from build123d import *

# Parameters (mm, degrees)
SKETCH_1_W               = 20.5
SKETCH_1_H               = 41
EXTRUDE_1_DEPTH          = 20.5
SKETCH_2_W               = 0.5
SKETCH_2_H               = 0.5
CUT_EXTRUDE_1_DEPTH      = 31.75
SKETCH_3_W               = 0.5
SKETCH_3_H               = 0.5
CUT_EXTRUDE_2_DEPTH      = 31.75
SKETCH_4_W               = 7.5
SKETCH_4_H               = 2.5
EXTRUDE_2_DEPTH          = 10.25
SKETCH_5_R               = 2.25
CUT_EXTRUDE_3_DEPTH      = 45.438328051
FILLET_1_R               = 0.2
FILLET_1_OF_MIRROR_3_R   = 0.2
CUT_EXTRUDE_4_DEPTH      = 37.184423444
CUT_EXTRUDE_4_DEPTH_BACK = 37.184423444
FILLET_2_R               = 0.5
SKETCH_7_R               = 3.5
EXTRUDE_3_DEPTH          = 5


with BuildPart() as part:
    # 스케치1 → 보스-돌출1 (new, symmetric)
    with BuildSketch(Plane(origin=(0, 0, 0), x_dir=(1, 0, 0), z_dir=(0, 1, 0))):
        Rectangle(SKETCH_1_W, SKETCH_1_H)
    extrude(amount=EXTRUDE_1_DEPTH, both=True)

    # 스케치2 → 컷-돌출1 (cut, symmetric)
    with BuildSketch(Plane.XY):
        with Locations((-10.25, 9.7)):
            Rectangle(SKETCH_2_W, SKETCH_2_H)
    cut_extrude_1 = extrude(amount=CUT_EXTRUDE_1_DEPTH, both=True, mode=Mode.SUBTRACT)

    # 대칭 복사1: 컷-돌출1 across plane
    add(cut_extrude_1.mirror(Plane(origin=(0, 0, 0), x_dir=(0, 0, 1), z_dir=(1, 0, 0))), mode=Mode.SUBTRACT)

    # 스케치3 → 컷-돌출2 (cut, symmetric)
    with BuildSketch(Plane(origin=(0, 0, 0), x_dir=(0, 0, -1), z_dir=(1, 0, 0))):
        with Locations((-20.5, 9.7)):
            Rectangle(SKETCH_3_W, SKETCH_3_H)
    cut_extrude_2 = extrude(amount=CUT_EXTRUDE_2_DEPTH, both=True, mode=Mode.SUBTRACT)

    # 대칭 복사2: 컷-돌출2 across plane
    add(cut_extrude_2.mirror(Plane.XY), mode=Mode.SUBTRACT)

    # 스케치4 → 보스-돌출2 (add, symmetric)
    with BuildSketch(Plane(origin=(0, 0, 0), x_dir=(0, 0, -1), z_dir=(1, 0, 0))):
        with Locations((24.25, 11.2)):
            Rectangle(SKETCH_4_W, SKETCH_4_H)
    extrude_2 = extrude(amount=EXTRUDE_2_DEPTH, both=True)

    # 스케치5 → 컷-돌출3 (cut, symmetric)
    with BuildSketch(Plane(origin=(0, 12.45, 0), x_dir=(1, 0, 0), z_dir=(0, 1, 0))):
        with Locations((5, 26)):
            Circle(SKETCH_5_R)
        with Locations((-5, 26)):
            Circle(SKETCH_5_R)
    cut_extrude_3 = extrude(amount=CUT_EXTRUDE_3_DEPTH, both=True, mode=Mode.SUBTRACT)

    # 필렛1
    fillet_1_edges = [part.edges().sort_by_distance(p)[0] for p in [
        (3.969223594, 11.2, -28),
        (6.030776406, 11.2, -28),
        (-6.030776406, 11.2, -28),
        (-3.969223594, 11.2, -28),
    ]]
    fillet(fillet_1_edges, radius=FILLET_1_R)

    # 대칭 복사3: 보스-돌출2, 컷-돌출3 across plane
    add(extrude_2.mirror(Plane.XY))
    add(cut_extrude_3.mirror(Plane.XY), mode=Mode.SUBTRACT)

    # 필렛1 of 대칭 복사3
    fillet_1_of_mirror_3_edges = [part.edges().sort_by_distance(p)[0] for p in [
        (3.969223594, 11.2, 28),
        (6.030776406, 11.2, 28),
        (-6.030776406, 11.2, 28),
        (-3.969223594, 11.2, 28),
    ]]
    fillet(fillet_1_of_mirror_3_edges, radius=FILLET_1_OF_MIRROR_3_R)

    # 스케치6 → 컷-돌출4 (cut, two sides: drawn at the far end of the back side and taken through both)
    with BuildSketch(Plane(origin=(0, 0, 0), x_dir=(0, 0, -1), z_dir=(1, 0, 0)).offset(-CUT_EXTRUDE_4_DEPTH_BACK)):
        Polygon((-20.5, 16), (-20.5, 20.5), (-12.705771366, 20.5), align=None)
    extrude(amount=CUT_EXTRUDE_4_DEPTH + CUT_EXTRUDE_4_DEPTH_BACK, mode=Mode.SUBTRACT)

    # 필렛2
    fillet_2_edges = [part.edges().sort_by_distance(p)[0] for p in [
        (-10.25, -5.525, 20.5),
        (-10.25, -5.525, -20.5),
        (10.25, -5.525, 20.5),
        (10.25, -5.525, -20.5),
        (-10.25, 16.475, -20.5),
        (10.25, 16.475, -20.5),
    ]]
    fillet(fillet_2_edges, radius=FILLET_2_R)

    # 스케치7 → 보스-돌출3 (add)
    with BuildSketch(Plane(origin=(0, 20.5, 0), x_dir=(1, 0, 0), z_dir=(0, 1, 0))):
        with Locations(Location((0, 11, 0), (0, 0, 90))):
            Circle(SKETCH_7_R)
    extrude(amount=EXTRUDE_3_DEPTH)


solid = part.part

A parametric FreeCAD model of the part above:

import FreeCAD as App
import Part
import Sketcher

V = App.Vector
Q = App.Units.Quantity


def edges_at(feature, points):
    """Names of the edges that pass closest to the given points."""
    edges = feature.Shape.Edges
    near = lambda p: min(range(len(edges)), key=lambda i: edges[i].distToShape(Part.Vertex(*p))[0])
    return sorted({f"Edge{near(p) + 1}" for p in points})

doc = App.newDocument("Part")
body = doc.addObject("PartDesign::Body", "Body")

# Sketch on XZ plane
sketch1 = body.newObject("Sketcher::SketchObject", "Sketch")
sketch1.AttachmentSupport = (doc.getObject("XZ_Plane"), [""])
sketch1.MapMode = "FlatFace"
sketch1.addGeometry([
    Part.LineSegment(V(-10.25, -20.5, 0), V(-10.25, 20.5, 0)),
    Part.LineSegment(V(-10.25, 20.5, 0), V(10.25, 20.5, 0)),
    Part.LineSegment(V(10.25, 20.5, 0), V(10.25, -20.5, 0)),
    Part.LineSegment(V(10.25, -20.5, 0), V(-10.25, -20.5, 0)),
], False)
sketch1.addConstraint([
    Sketcher.Constraint("Coincident", 0, 2, 1, 1),
    Sketcher.Constraint("Coincident", 1, 2, 2, 1),
    Sketcher.Constraint("Coincident", 2, 2, 3, 1),
    Sketcher.Constraint("Coincident", 3, 2, 0, 1),
    Sketcher.Constraint("Vertical", 0),
    Sketcher.Constraint("Horizontal", 1),
    Sketcher.Constraint("Vertical", 2),
    Sketcher.Constraint("Horizontal", 3),
    Sketcher.Constraint("Symmetric", 0, 2, 2, 2, -1, 1),
    Sketcher.Constraint("DistanceY", 0, 1, 0, 2, 41.0),
    Sketcher.Constraint("DistanceX", 1, 1, 1, 2, 20.5),
])
pad1 = body.newObject("PartDesign::Pad", "Pad")
pad1.Profile = sketch1
pad1.Length = 41
pad1.Midplane = True

# Sketch on XY plane
sketch2 = body.newObject("Sketcher::SketchObject", "Sketch001")
sketch2.AttachmentSupport = (doc.getObject("XY_Plane"), [""])
sketch2.MapMode = "FlatFace"
sketch2.addGeometry([
    Part.LineSegment(V(-10.5, 9.95, 0), V(-10.5, 9.45, 0)),
    Part.LineSegment(V(-10.5, 9.45, 0), V(-10, 9.45, 0)),
    Part.LineSegment(V(-10, 9.45, 0), V(-10, 9.95, 0)),
    Part.LineSegment(V(-10, 9.95, 0), V(-10.5, 9.95, 0)),
], False)
sketch2.addConstraint([
    Sketcher.Constraint("Coincident", 0, 2, 1, 1),
    Sketcher.Constraint("Coincident", 1, 2, 2, 1),
    Sketcher.Constraint("Coincident", 2, 2, 3, 1),
    Sketcher.Constraint("Coincident", 3, 2, 0, 1),
    Sketcher.Constraint("Vertical", 0),
    Sketcher.Constraint("Horizontal", 1),
    Sketcher.Constraint("Vertical", 2),
    Sketcher.Constraint("Horizontal", 3),
    Sketcher.Constraint("Equal", 3, 0),
    Sketcher.Constraint("DistanceX", 1, 1, 1, 2, 0.5),
    Sketcher.Constraint("DistanceX", 1, 2, -1, 1, 10.0),
    Sketcher.Constraint("DistanceY", -1, 1, 0, 2, 9.45),
])
pocket1 = body.newObject("PartDesign::Pocket", "Pocket")
pocket1.Profile = sketch2
pocket1.Length = 63.5
pocket1.Midplane = True
doc.recompute()

mirrored = body.newObject("PartDesign::Mirrored", "Mirrored")
mirrored.Originals = [pocket1]
mirrored.MirrorPlane = (doc.getObject("YZ_Plane"), [""])
body.Tip = mirrored

# Sketch on YZ plane
sketch3 = body.newObject("Sketcher::SketchObject", "Sketch002")
sketch3.AttachmentSupport = (doc.getObject("YZ_Plane"), [""])
sketch3.MapMode = "FlatFace"
sketch3.addGeometry([
    Part.LineSegment(V(9.95, 20.75, 0), V(9.45, 20.75, 0)),
    Part.LineSegment(V(9.45, 20.75, 0), V(9.45, 20.25, 0)),
    Part.LineSegment(V(9.45, 20.25, 0), V(9.95, 20.25, 0)),
    Part.LineSegment(V(9.95, 20.25, 0), V(9.95, 20.75, 0)),
], False)
sketch3.addConstraint([
    Sketcher.Constraint("Coincident", 0, 2, 1, 1),
    Sketcher.Constraint("Coincident", 1, 2, 2, 1),
    Sketcher.Constraint("Coincident", 2, 2, 3, 1),
    Sketcher.Constraint("Coincident", 3, 2, 0, 1),
    Sketcher.Constraint("Horizontal", 0),
    Sketcher.Constraint("Vertical", 1),
    Sketcher.Constraint("Horizontal", 2),
    Sketcher.Constraint("Vertical", 3),
    Sketcher.Constraint("Equal", 2, 1),
    Sketcher.Constraint("DistanceX", 0, 2, 0, 1, 0.5),
    Sketcher.Constraint("DistanceX", -1, 1, 0, 2, 9.45),
    Sketcher.Constraint("DistanceY", -1, 1, 0, 2, 20.75),
])
pocket2 = body.newObject("PartDesign::Pocket", "Pocket001")
pocket2.Profile = sketch3
pocket2.Length = 63.5
pocket2.Midplane = True
doc.recompute()

mirrored2 = body.newObject("PartDesign::Mirrored", "Mirrored001")
mirrored2.Originals = [pocket2]
mirrored2.MirrorPlane = (doc.getObject("XY_Plane"), [""])
body.Tip = mirrored2

# Sketch on YZ plane
sketch4 = body.newObject("Sketcher::SketchObject", "Sketch003")
sketch4.AttachmentSupport = (doc.getObject("YZ_Plane"), [""])
sketch4.MapMode = "FlatFace"
sketch4.addGeometry([
    Part.LineSegment(V(12.45, -20.5, 0), V(9.95, -20.5, 0)),
    Part.LineSegment(V(9.95, -20.5, 0), V(9.95, -28, 0)),
    Part.LineSegment(V(9.95, -28, 0), V(12.45, -28, 0)),
    Part.LineSegment(V(12.45, -28, 0), V(12.45, -20.5, 0)),
], False)
sketch4.addConstraint([
    Sketcher.Constraint("Coincident", 0, 2, 1, 1),
    Sketcher.Constraint("Coincident", 1, 2, 2, 1),
    Sketcher.Constraint("Coincident", 2, 2, 3, 1),
    Sketcher.Constraint("Coincident", 3, 2, 0, 1),
    Sketcher.Constraint("Horizontal", 0),
    Sketcher.Constraint("Vertical", 1),
    Sketcher.Constraint("Horizontal", 2),
    Sketcher.Constraint("Vertical", 3),
    Sketcher.Constraint("DistanceX", 0, 2, 0, 1, 2.5),
    Sketcher.Constraint("DistanceY", 1, 2, 1, 1, 7.5),
    Sketcher.Constraint("DistanceY", 1, 2, -1, 1, 28.0),
    Sketcher.Constraint("DistanceX", -1, 1, 0, 2, 9.95),
])
pad2 = body.newObject("PartDesign::Pad", "Pad001")
pad2.Profile = sketch4
pad2.Length = 20.5
pad2.Midplane = True

# Sketch on XZ plane
sketch5 = body.newObject("Sketcher::SketchObject", "Sketch004")
sketch5.AttachmentSupport = (doc.getObject("XZ_Plane"), [""])
sketch5.MapMode = "FlatFace"
sketch5.AttachmentOffset = App.Placement(V(0, 0, -12.45), App.Rotation())
sketch5.addGeometry([
    Part.Circle(V(5, -26, 0), V(0, 0, 1), 2.25),
    Part.Circle(V(-5, -26, 0), V(0, 0, 1), 2.25),
], False)
sketch5.addConstraint([
    Sketcher.Constraint("Equal", 0, 1),
    Sketcher.Constraint("Symmetric", 0, 3, 1, 3, -2),
    Sketcher.Constraint("Diameter", 0, 4.5),
    Sketcher.Constraint("DistanceX", -1, 1, 0, 3, 5.0),
    Sketcher.Constraint("DistanceY", 0, 3, -1, 1, 26.0),
])
pocket3 = body.newObject("PartDesign::Pocket", "Pocket002")
pocket3.Profile = sketch5
pocket3.Length = 90.876656
pocket3.Midplane = True
doc.recompute()

fillet = body.newObject("PartDesign::Fillet", "Fillet")
fillet.Base = (pocket3, edges_at(pocket3, [
    (3.969, 11.2, -28),
    (6.031, 11.2, -28),
    (-6.031, 11.2, -28),
    (-3.969, 11.2, -28),
]))
fillet.Radius = 0.2
doc.recompute()

mirrored3 = body.newObject("PartDesign::Mirrored", "Mirrored002")
mirrored3.Originals = [pad2, pocket3]
mirrored3.MirrorPlane = (doc.getObject("XY_Plane"), [""])
body.Tip = mirrored3
doc.recompute()

fillet2 = body.newObject("PartDesign::Fillet", "Fillet001")
fillet2.Base = (mirrored3, edges_at(mirrored3, [
    (3.969, 11.2, 28),
    (6.031, 11.2, 28),
    (-6.031, 11.2, 28),
    (-3.969, 11.2, 28),
]))
fillet2.Radius = 0.2

# Sketch on YZ plane
sketch6 = body.newObject("Sketcher::SketchObject", "Sketch005")
sketch6.AttachmentSupport = (doc.getObject("YZ_Plane"), [""])
sketch6.MapMode = "FlatFace"
sketch6.addGeometry([
    Part.LineSegment(V(20.5, 20.5, 0), V(16, 20.5, 0)),
    Part.LineSegment(V(16, 20.5, 0), V(20.5, 12.705771, 0)),
    Part.LineSegment(V(20.5, 12.705771, 0), V(20.5, 20.5, 0)),
], False)
sketch6.addConstraint([
    Sketcher.Constraint("Coincident", 0, 2, 1, 1),
    Sketcher.Constraint("Coincident", 1, 2, 2, 1),
    Sketcher.Constraint("Coincident", 2, 2, 0, 1),
    Sketcher.Constraint("Horizontal", 0),
    Sketcher.Constraint("Vertical", 2),
    Sketcher.Constraint("Angle", 1, Q("-60 deg")),
    Sketcher.Constraint("Distance", 1, 9.0),
    Sketcher.Constraint("DistanceX", -1, 1, 0, 2, 16.0),
    Sketcher.Constraint("DistanceY", -1, 1, 0, 2, 20.5),
])
pocket4 = body.newObject("PartDesign::Pocket", "Pocket003")
pocket4.Profile = sketch6
pocket4.Type = "ThroughAll"
pocket4.Midplane = True
doc.recompute()

fillet3 = body.newObject("PartDesign::Fillet", "Fillet002")
fillet3.Base = (pocket4, edges_at(pocket4, [
    (-10.25, -5.525, 20.5),
    (-10.25, -5.525, -20.5),
    (10.25, -5.525, 20.5),
    (10.25, -5.525, -20.5),
    (-10.25, 16.475, -20.5),
    (10.25, 16.475, -20.5),
]))
fillet3.Radius = 0.5

# Sketch on XZ plane
sketch7 = body.newObject("Sketcher::SketchObject", "Sketch006")
sketch7.AttachmentSupport = (doc.getObject("XZ_Plane"), [""])
sketch7.MapMode = "FlatFace"
sketch7.AttachmentOffset = App.Placement(V(0, 0, -20.5), App.Rotation())
sketch7.addGeometry(Part.Circle(V(0, -11, 0), V(0, 0, 1), 3.5), False)
sketch7.addConstraint([
    Sketcher.Constraint("PointOnObject", 0, 3, -2),
    Sketcher.Constraint("Diameter", 0, 7.0),
    Sketcher.Constraint("DistanceY", 0, 3, -1, 1, 11.0),
])
pad3 = body.newObject("PartDesign::Pad", "Pad002")
pad3.Profile = sketch7
pad3.Length = 5
pad3.Reversed = True

doc.recompute()
